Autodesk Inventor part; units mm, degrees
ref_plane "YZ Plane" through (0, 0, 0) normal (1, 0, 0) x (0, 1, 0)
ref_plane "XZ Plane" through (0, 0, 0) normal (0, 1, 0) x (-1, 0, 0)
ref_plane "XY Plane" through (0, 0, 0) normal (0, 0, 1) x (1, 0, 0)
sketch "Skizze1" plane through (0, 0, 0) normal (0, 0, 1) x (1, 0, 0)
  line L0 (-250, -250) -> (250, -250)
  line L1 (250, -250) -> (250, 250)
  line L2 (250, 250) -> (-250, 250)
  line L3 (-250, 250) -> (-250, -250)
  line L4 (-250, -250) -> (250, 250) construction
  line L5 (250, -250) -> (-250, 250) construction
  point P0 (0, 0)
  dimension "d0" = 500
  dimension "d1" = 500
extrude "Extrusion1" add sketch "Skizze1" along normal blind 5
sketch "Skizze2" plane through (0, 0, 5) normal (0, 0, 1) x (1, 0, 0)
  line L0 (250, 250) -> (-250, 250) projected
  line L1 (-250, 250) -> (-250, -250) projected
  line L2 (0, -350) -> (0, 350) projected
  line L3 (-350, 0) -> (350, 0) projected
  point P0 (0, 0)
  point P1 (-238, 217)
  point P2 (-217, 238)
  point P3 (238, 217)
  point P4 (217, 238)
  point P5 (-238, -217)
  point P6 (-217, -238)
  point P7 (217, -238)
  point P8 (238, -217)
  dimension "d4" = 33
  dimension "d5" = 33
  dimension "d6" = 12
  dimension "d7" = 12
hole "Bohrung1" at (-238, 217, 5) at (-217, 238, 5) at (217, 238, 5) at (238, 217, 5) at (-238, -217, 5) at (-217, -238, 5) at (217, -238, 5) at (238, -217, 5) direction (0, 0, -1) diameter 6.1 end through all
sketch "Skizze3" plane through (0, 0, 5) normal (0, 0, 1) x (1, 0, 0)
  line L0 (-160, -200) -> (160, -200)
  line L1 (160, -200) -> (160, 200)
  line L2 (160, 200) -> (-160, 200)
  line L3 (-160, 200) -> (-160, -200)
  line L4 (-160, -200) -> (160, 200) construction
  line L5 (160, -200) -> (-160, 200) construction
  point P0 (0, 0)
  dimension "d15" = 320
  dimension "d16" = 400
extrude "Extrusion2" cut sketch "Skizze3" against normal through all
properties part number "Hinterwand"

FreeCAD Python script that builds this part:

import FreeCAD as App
import Part
import Sketcher

V = App.Vector


def add_polygon(sketch, points):
    """Adds a closed chain of lines whose ends are joined by coincident constraints."""
    first, n = sketch.GeometryCount, len(points)
    for a, b in zip(points, points[1:] + points[:1]):
        sketch.addGeometry(Part.LineSegment(App.Vector(*a, 0), App.Vector(*b, 0)), False)
    for i in range(n):
        sketch.addConstraint(Sketcher.Constraint("Coincident", first + i, 2, first + (i + 1) % n, 1))

doc = App.newDocument("Part")
body = doc.addObject("PartDesign::Body", "Body")

# Sketch on XY plane
sketch1 = doc.addObject("Sketcher::SketchObject", "Sketch")
body.addObject(sketch1)
sketch1.AttachmentSupport = (doc.XY_Plane, [""])
sketch1.MapMode = "FlatFace"
add_polygon(sketch1, [(-250, 250), (-250, -250), (250, -250), (250, 250)])  # lines 0-3
sketch1.addConstraint(Sketcher.Constraint("Vertical", 0))
sketch1.addConstraint(Sketcher.Constraint("Horizontal", 1))
sketch1.addConstraint(Sketcher.Constraint("Vertical", 2))
sketch1.addConstraint(Sketcher.Constraint("Horizontal", 3))
sketch1.addConstraint(Sketcher.Constraint("Symmetric", 0, 2, 2, 2, -1, 1))
sketch1.addConstraint(Sketcher.Constraint("Equal", 3, 0))
sketch1.addConstraint(Sketcher.Constraint("DistanceX", 1, 1, 1, 2, 500.0))
pad1 = doc.addObject("PartDesign::Pad", "Pad")
body.addObject(pad1)
pad1.Profile = sketch1
pad1.Length = 5

# Sketch on XY plane
sketch2 = doc.addObject("Sketcher::SketchObject", "Sketch001")
body.addObject(sketch2)
sketch2.AttachmentSupport = (doc.XY_Plane, [""])
sketch2.MapMode = "FlatFace"
sketch2.AttachmentOffset = App.Placement(V(0, 0, 5), App.Rotation())
sketch2.addGeometry(Part.Circle(V(-238, 217, 0), V(0, 0, 1), 3), False)
sketch2.addGeometry(Part.Circle(V(-217, 238, 0), V(0, 0, 1), 3), False)
sketch2.addGeometry(Part.Circle(V(217, 238, 0), V(0, 0, 1), 3), False)
sketch2.addGeometry(Part.Circle(V(238, 217, 0), V(0, 0, 1), 3), False)
sketch2.addGeometry(Part.Circle(V(-238, -217, 0), V(0, 0, 1), 3), False)
sketch2.addGeometry(Part.Circle(V(-217, -238, 0), V(0, 0, 1), 3), False)
sketch2.addGeometry(Part.Circle(V(217, -238, 0), V(0, 0, 1), 3), False)
sketch2.addGeometry(Part.Circle(V(238, -217, 0), V(0, 0, 1), 3), False)
sketch2.addConstraint(Sketcher.Constraint("Equal", 0, 1))
sketch2.addConstraint(Sketcher.Constraint("Equal", 1, 2))
sketch2.addConstraint(Sketcher.Constraint("Equal", 2, 3))
sketch2.addConstraint(Sketcher.Constraint("Equal", 3, 4))
sketch2.addConstraint(Sketcher.Constraint("Equal", 4, 5))
sketch2.addConstraint(Sketcher.Constraint("Equal", 5, 6))
sketch2.addConstraint(Sketcher.Constraint("Equal", 6, 7))
sketch2.addConstraint(Sketcher.Constraint("Symmetric", 3, 3, 4, 3, -1, 1))
sketch2.addConstraint(Sketcher.Constraint("Symmetric", 2, 3, 5, 3, -1, 1))
sketch2.addConstraint(Sketcher.Constraint("Symmetric", 1, 3, 6, 3, -1, 1))
sketch2.addConstraint(Sketcher.Constraint("Symmetric", 0, 3, 7, 3, -1, 1))
sketch2.addConstraint(Sketcher.Constraint("Symmetric", 1, 3, 2, 3, -2))
sketch2.addConstraint(Sketcher.Constraint("Symmetric", 0, 3, 3, 3, -2))
sketch2.addConstraint(Sketcher.Constraint("Diameter", 0, 6.1))
sketch2.addConstraint(Sketcher.Constraint("DistanceX", 0, 3, -1, 1, 238.0))
sketch2.addConstraint(Sketcher.Constraint("DistanceY", -1, 1, 0, 3, 217.0))
sketch2.addConstraint(Sketcher.Constraint("DistanceX", 1, 3, -1, 1, 217.0))
sketch2.addConstraint(Sketcher.Constraint("DistanceY", -1, 1, 1, 3, 238.0))
doc.recompute()
hole = doc.addObject("PartDesign::Hole", "Hole")
body.addObject(hole)
hole.Profile = sketch2
hole.ThreadType = "None"
hole.Diameter = 6.1
hole.DepthType = "ThroughAll"

# Sketch on XY plane
sketch3 = doc.addObject("Sketcher::SketchObject", "Sketch002")
body.addObject(sketch3)
sketch3.AttachmentSupport = (doc.XY_Plane, [""])
sketch3.MapMode = "FlatFace"
sketch3.AttachmentOffset = App.Placement(V(0, 0, 5), App.Rotation())
add_polygon(sketch3, [(-160, 200), (-160, -200), (160, -200), (160, 200)])  # lines 0-3
sketch3.addConstraint(Sketcher.Constraint("Vertical", 0))
sketch3.addConstraint(Sketcher.Constraint("Horizontal", 1))
sketch3.addConstraint(Sketcher.Constraint("Vertical", 2))
sketch3.addConstraint(Sketcher.Constraint("Horizontal", 3))
sketch3.addConstraint(Sketcher.Constraint("Symmetric", 0, 2, 2, 2, -1, 1))
sketch3.addConstraint(Sketcher.Constraint("DistanceX", 1, 1, 1, 2, 320.0))
sketch3.addConstraint(Sketcher.Constraint("DistanceY", 0, 2, 0, 1, 400.0))
pocket1 = doc.addObject("PartDesign::Pocket", "Pocket")
body.addObject(pocket1)
pocket1.Profile = sketch3
pocket1.Type = "ThroughAll"

doc.recompute()
